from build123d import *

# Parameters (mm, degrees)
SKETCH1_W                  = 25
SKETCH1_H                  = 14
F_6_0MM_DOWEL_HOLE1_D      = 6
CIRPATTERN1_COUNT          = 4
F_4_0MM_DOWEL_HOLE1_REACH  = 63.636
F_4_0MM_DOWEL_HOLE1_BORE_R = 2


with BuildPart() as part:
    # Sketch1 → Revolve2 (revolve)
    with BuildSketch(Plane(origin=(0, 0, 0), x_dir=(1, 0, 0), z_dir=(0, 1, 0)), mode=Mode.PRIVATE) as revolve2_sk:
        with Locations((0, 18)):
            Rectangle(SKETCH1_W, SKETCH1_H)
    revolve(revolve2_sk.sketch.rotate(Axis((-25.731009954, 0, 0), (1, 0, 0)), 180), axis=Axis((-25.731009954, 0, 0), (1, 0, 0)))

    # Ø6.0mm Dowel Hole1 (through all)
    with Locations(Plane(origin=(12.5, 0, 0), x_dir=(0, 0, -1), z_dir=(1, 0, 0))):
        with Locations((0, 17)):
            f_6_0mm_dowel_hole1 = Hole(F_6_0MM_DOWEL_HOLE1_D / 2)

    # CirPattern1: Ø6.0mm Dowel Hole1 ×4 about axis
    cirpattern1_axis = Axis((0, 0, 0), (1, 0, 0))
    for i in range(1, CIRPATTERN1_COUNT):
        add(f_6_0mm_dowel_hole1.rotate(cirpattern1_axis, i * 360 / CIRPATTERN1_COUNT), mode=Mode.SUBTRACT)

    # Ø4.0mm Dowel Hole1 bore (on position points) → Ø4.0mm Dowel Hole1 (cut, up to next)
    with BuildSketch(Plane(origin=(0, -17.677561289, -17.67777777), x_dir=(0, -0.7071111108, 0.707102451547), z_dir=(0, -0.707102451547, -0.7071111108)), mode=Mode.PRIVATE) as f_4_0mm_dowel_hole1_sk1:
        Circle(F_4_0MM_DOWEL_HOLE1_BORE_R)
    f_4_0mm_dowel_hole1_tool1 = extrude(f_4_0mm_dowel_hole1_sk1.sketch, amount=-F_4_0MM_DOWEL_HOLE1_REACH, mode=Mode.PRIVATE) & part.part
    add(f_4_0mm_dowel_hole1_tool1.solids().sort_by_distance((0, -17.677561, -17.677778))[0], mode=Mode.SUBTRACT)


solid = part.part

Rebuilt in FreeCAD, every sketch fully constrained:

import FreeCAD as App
import Part
import Sketcher

doc = App.newDocument("Part")
params = doc.addObject("Spreadsheet::Sheet", "Params")
for row, (alias, value) in enumerate([
    ("sketch1_width", "25 mm"),
    ("sketch1_height", "14 mm"),
    ("revolution_angle", "360 deg"),
    ("sketch2_diameter", "6 mm"),
    ("hole_diameter", "6 mm"),
    ("sketch3_diameter", "4 mm"),
], start=1):
    params.set(f"A{row}", alias)
    params.set(f"B{row}", "=" + value)
    params.setAlias(f"B{row}", alias)

body = doc.addObject("PartDesign::Body", "Body")

# Sketch on XZ plane
sketch1 = body.newObject("Sketcher::SketchObject", "Sketch")
sketch1.AttachmentSupport = (doc.getObject("XZ_Plane"), [""])
sketch1.MapMode = "FlatFace"
sketch1.addGeometry(Part.LineSegment(App.Vector(-12.5, -25, 0), App.Vector(-12.5, -11, 0)), False)
sketch1.addGeometry(Part.LineSegment(App.Vector(-12.5, -11, 0), App.Vector(12.5, -11, 0)), False)
sketch1.addGeometry(Part.LineSegment(App.Vector(12.5, -11, 0), App.Vector(12.5, -25, 0)), False)
sketch1.addGeometry(Part.LineSegment(App.Vector(12.5, -25, 0), App.Vector(-12.5, -25, 0)), False)
sketch1.addConstraint(Sketcher.Constraint("Coincident", 0, 2, 1, 1))
sketch1.addConstraint(Sketcher.Constraint("Coincident", 1, 2, 2, 1))
sketch1.addConstraint(Sketcher.Constraint("Coincident", 2, 2, 3, 1))
sketch1.addConstraint(Sketcher.Constraint("Coincident", 3, 2, 0, 1))
sketch1.addConstraint(Sketcher.Constraint("Vertical", 0))
sketch1.addConstraint(Sketcher.Constraint("Horizontal", 1))
sketch1.addConstraint(Sketcher.Constraint("Vertical", 2))
sketch1.addConstraint(Sketcher.Constraint("Horizontal", 3))
sketch1.addConstraint(Sketcher.Constraint("DistanceX", 1, 1, 1, 2, 25.0))
sketch1.addConstraint(Sketcher.Constraint("DistanceY", 0, 1, 0, 2, 14.0))
sketch1.addConstraint(Sketcher.Constraint("DistanceY", 0, 2, -1, 1, 11.0))
sketch1.addConstraint(Sketcher.Constraint("DistanceX", 0, 2, -1, 1, 12.5))
sketch1.setExpression("Constraints[8]", "Params.sketch1_width")
sketch1.setExpression("Constraints[9]", "Params.sketch1_height")
revolution = body.newObject("PartDesign::Revolution", "Revolution")
revolution.Profile = sketch1
revolution.ReferenceAxis = (sketch1, ["H_Axis"])
revolution.setExpression("Angle", "Params.revolution_angle")

# Sketch on YZ plane
sketch2 = body.newObject("Sketcher::SketchObject", "Sketch001")
sketch2.AttachmentSupport = (doc.getObject("YZ_Plane"), [""])
sketch2.MapMode = "FlatFace"
sketch2.AttachmentOffset = App.Placement(App.Vector(0, 0, 12.5), App.Rotation())
sketch2.addGeometry(Part.Circle(App.Vector(17, 0, 0), App.Vector(0, 0, 1), 3), False)
sketch2.addConstraint(Sketcher.Constraint("PointOnObject", 0, 3, -1))
sketch2.addConstraint(Sketcher.Constraint("Diameter", 0, 6.0))
sketch2.addConstraint(Sketcher.Constraint("DistanceX", -1, 1, 0, 3, 17.0))
sketch2.setExpression("Constraints[1]", "Params.sketch2_diameter")
doc.recompute()
hole = body.newObject("PartDesign::Hole", "Hole")
hole.Profile = sketch2
hole.ThreadType = "None"
hole.setExpression("Diameter", "Params.hole_diameter")
hole.DepthType = "ThroughAll"
doc.recompute()

polarpattern = body.newObject("PartDesign::PolarPattern", "PolarPattern")
polarpattern.Originals = [hole]
polarpattern.Axis = (doc.getObject("X_Axis"), [""])
polarpattern.Angle = 360
polarpattern.Occurrences = 4
body.Tip = polarpattern

# Sketch on an angled plane
sketch3 = body.newObject("Sketcher::SketchObject", "Sketch002")
sketch3.Placement = App.Placement(App.Vector(0, -17.677561, -17.677778), App.Rotation(App.Vector(0, -0.707111111, 0.707102452), App.Vector(-1.000000001, 0, 0), App.Vector(0, -0.707102452, -0.707111111), "ZXY"))
sketch3.addGeometry(Part.Circle(App.Vector(0, 0, 0), App.Vector(0, 0, 1), 2), False)
sketch3.addConstraint(Sketcher.Constraint("Coincident", 0, 3, -1, 1))
sketch3.addConstraint(Sketcher.Constraint("Diameter", 0, 4.0))
sketch3.setExpression("Constraints[1]", "Params.sketch3_diameter")
pocket1 = body.newObject("PartDesign::Pocket", "Pocket")
pocket1.Profile = sketch3
pocket1.Type = "UpToFirst"

doc.recompute()
